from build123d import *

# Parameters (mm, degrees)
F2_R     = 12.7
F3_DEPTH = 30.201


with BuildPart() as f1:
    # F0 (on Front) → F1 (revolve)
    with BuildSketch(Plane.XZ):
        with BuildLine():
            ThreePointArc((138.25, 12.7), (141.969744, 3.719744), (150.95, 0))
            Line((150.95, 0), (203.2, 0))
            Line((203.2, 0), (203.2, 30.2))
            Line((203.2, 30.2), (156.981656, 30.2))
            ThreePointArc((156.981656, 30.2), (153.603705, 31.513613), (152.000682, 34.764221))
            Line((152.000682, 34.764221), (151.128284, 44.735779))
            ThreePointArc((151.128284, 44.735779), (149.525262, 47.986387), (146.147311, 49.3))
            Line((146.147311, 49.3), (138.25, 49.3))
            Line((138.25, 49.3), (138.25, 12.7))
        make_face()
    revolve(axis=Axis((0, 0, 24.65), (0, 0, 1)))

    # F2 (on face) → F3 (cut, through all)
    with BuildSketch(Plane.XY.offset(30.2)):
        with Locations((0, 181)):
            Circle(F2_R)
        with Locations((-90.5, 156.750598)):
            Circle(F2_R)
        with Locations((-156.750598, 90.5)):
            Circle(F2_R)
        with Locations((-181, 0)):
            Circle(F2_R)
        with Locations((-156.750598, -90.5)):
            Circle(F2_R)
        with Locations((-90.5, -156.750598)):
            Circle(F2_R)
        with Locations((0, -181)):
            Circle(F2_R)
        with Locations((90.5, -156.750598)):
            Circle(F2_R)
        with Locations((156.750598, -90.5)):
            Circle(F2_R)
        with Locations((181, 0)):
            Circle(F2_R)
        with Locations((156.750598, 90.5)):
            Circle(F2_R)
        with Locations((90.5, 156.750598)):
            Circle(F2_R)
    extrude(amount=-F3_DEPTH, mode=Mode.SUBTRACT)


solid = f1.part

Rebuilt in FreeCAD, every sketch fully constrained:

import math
import FreeCAD as App
import Part
import Sketcher
Q = App.Units.Quantity

doc = App.newDocument("Part")
body = doc.addObject("PartDesign::Body", "Body")

sketch1 = body.newObject("Sketcher::SketchObject", "Sketch")
sketch1.AttachmentSupport = (doc.getObject("XZ_Plane"), [""])
sketch1.MapMode = "FlatFace"
sketch1.addGeometry([
    Part.ArcOfCircle(Part.Circle(App.Vector(150.95, 12.7, 0), App.Vector(0, 0, 1), 12.7), math.radians(-179.999998), math.radians(-90.000002)),
    Part.LineSegment(App.Vector(150.95, 0, 0), App.Vector(203.2, 0, 0)),
    Part.LineSegment(App.Vector(203.2, 0, 0), App.Vector(203.2, 30.2, 0)),
    Part.LineSegment(App.Vector(203.2, 30.2, 0), App.Vector(156.981656, 30.2, 0)),
    Part.ArcOfCircle(Part.Circle(App.Vector(156.981656, 35.2, 0), App.Vector(0, 0, 1), 5), math.radians(-174.999992), math.radians(-89.999998)),
    Part.LineSegment(App.Vector(152.000682, 34.764221, 0), App.Vector(151.128284, 44.735779, 0)),
    Part.ArcOfCircle(Part.Circle(App.Vector(146.147312, 44.300001, 0), App.Vector(0, 0, 1), 4.999999), math.radians(4.999988), math.radians(90.00001)),
    Part.LineSegment(App.Vector(146.147311, 49.3, 0), App.Vector(138.25, 49.3, 0)),
    Part.LineSegment(App.Vector(138.25, 49.3, 0), App.Vector(138.25, 12.7, 0)),
], False)
sketch1.addConstraint([
    Sketcher.Constraint("Tangent", 0, 2, 1, 1),
    Sketcher.Constraint("Coincident", 1, 2, 2, 1),
    Sketcher.Constraint("Coincident", 2, 2, 3, 1),
    Sketcher.Constraint("Tangent", 3, 2, 4, 2),
    Sketcher.Constraint("Tangent", 4, 1, 5, 1),
    Sketcher.Constraint("Tangent", 5, 2, 6, 1),
    Sketcher.Constraint("Tangent", 6, 2, 7, 1),
    Sketcher.Constraint("Coincident", 7, 2, 8, 1),
    Sketcher.Constraint("Tangent", 8, 2, 0, 1),
    Sketcher.Constraint("Horizontal", 1),
    Sketcher.Constraint("Vertical", 2),
    Sketcher.Constraint("Horizontal", 3),
    Sketcher.Constraint("Horizontal", 7),
    Sketcher.Constraint("Vertical", 8),
    Sketcher.Constraint("Equal", 4, 6),
    Sketcher.Constraint("PointOnObject", 0, 2, -1),
    Sketcher.Constraint("Radius", 4, 5.0),
    Sketcher.Constraint("Radius", 0, 12.7),
    Sketcher.Constraint("Angle", 5, Q("94.999998 deg")),
    Sketcher.Constraint("DistanceY", 2, 1, 2, 2, 30.2),
    Sketcher.Constraint("DistanceY", 8, 2, 8, 1, 36.6),
    Sketcher.Constraint("DistanceX", 1, 1, 1, 2, 52.25),
    Sketcher.Constraint("DistanceX", -1, 1, 1, 2, 203.2),
    Sketcher.Constraint("DistanceX", 7, 2, 7, 1, 7.897311),
])
revolution = body.newObject("PartDesign::Revolution", "Revolution")
revolution.Profile = sketch1
revolution.ReferenceAxis = (sketch1, ["V_Axis"])
revolution.Angle = 360

sketch2 = body.newObject("Sketcher::SketchObject", "Sketch001")
sketch2.AttachmentSupport = (doc.getObject("XY_Plane"), [""])
sketch2.MapMode = "FlatFace"
sketch2.AttachmentOffset = App.Placement(App.Vector(0, 0, 30.2), App.Rotation())
sketch2.addGeometry([
    Part.Circle(App.Vector(0, 181, 0), App.Vector(0, 0, 1), 12.7),
    Part.Circle(App.Vector(-90.5, 156.750598, 0), App.Vector(0, 0, 1), 12.7),
    Part.Circle(App.Vector(-156.750598, 90.5, 0), App.Vector(0, 0, 1), 12.7),
    Part.Circle(App.Vector(-181, 0, 0), App.Vector(0, 0, 1), 12.7),
    Part.Circle(App.Vector(-156.750598, -90.5, 0), App.Vector(0, 0, 1), 12.7),
    Part.Circle(App.Vector(-90.5, -156.750598, 0), App.Vector(0, 0, 1), 12.7),
    Part.Circle(App.Vector(0, -181, 0), App.Vector(0, 0, 1), 12.7),
    Part.Circle(App.Vector(90.5, -156.750598, 0), App.Vector(0, 0, 1), 12.7),
    Part.Circle(App.Vector(156.750598, -90.5, 0), App.Vector(0, 0, 1), 12.7),
    Part.Circle(App.Vector(181, 0, 0), App.Vector(0, 0, 1), 12.7),
    Part.Circle(App.Vector(156.750598, 90.5, 0), App.Vector(0, 0, 1), 12.7),
    Part.Circle(App.Vector(90.5, 156.750598, 0), App.Vector(0, 0, 1), 12.7),
], False)
sketch2.addConstraint([
    Sketcher.Constraint("Equal", 0, 1),
    Sketcher.Constraint("Equal", 1, 2),
    Sketcher.Constraint("Equal", 2, 3),
    Sketcher.Constraint("Equal", 3, 4),
    Sketcher.Constraint("Equal", 4, 5),
    Sketcher.Constraint("Equal", 5, 6),
    Sketcher.Constraint("Equal", 6, 7),
    Sketcher.Constraint("Equal", 7, 8),
    Sketcher.Constraint("Equal", 8, 9),
    Sketcher.Constraint("Equal", 9, 10),
    Sketcher.Constraint("Equal", 10, 11),
    Sketcher.Constraint("Symmetric", 0, 3, 6, 3, -1, 1),
    Sketcher.Constraint("Symmetric", 1, 3, 7, 3, -1, 1),
    Sketcher.Constraint("Symmetric", 2, 3, 8, 3, -1, 1),
    Sketcher.Constraint("Symmetric", 3, 3, 9, 3, -1, 1),
    Sketcher.Constraint("Symmetric", 4, 3, 10, 3, -1, 1),
    Sketcher.Constraint("Symmetric", 5, 3, 11, 3, -1, 1),
    Sketcher.Constraint("Symmetric", 5, 3, 7, 3, -2),
    Sketcher.Constraint("Symmetric", 4, 3, 8, 3, -2),
    Sketcher.Constraint("PointOnObject", 0, 3, -2),
    Sketcher.Constraint("PointOnObject", 3, 3, -1),
    Sketcher.Constraint("Diameter", 0, 25.4),
    Sketcher.Constraint("DistanceY", -1, 1, 0, 3, 181.0),
    Sketcher.Constraint("DistanceX", 3, 3, -1, 1, 181.0),
    Sketcher.Constraint("DistanceY", 4, 3, 2, 3, 181.0),
    Sketcher.Constraint("DistanceX", 5, 3, 7, 3, 181.0),
    Sketcher.Constraint("DistanceY", -1, 1, 1, 3, 156.750598),
    Sketcher.Constraint("DistanceX", 2, 3, -1, 1, 156.750598),
])
pocket1 = body.newObject("PartDesign::Pocket", "Pocket")
pocket1.Profile = sketch2
pocket1.Type = "ThroughAll"

doc.recompute()
